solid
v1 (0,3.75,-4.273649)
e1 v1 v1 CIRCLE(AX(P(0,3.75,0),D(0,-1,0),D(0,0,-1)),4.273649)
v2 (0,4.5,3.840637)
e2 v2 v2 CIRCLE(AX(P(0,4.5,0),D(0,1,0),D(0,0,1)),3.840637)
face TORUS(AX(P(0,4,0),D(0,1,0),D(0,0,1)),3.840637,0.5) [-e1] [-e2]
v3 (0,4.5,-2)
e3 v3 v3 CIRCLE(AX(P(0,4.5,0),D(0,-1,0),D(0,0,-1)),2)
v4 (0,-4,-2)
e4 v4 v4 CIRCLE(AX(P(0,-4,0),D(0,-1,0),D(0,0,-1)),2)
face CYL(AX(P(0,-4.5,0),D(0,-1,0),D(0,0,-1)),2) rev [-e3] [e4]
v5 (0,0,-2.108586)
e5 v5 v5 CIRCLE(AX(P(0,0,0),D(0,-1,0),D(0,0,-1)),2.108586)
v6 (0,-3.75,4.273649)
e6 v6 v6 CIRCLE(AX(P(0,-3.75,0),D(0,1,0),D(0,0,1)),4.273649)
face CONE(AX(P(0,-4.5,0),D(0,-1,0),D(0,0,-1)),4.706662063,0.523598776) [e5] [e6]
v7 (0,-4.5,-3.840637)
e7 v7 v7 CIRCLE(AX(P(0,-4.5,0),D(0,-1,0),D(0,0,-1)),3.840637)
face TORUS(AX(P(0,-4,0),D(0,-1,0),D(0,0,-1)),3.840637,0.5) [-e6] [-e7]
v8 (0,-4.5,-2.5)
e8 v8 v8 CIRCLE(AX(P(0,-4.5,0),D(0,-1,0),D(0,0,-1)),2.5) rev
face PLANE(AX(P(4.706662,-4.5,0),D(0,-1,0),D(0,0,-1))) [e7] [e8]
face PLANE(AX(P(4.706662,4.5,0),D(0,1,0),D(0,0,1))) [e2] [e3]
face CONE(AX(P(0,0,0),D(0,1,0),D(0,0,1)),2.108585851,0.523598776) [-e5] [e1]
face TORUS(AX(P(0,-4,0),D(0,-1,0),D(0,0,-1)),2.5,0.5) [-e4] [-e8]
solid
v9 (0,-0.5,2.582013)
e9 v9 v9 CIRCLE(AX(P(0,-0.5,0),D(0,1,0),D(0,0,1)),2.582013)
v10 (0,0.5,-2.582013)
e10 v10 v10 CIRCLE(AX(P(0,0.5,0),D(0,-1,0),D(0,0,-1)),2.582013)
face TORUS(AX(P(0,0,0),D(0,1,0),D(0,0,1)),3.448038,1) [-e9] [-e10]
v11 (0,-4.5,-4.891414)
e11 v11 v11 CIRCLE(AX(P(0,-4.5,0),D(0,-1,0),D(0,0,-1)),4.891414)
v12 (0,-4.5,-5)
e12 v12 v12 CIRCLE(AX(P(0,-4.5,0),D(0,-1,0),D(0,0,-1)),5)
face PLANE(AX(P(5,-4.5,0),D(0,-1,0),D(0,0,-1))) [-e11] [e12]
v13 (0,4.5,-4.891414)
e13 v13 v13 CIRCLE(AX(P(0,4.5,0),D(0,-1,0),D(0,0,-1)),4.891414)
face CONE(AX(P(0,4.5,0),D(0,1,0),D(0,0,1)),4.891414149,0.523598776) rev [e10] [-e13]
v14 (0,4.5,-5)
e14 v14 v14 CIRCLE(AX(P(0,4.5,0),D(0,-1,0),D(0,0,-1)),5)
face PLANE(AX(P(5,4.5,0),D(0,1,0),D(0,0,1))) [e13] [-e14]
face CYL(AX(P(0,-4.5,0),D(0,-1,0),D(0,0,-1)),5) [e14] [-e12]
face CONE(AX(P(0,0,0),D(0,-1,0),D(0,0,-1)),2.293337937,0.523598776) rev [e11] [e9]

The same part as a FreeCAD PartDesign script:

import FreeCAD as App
import Part
import Sketcher
from FreeCAD import Vector
Q = App.Units.Quantity


def edges_at(feature, points):
    """Names of the edges that pass closest to the given points."""
    edges = feature.Shape.Edges
    near = lambda p: min(range(len(edges)), key=lambda i: edges[i].distToShape(Part.Vertex(*p))[0])
    return sorted({f"Edge{near(p) + 1}" for p in points})

doc = App.newDocument("Part")
params = doc.addObject("Spreadsheet::Sheet", "Params")
for row, (alias, value) in enumerate([
    ("sketch1_height", "9 mm"),
    ("revolution_angle", "360 deg"),
    ("fillet_radius", "1 mm"),
    ("fillet2_radius", "0.5 mm"),
], start=1):
    params.set(f"A{row}", alias)
    params.set(f"B{row}", "=" + value)
    params.setAlias(f"B{row}", alias)

body = doc.addObject("PartDesign::Body", "Body")
body.AllowCompound = True

sketch1 = doc.addObject("Sketcher::SketchObject", "Sketch")
body.addObject(sketch1)
sketch1.AttachmentSupport = (doc.XY_Plane, [""])
sketch1.MapMode = "FlatFace"
sketch1.addGeometry([
    Part.LineSegment(Vector(4.89, -4.5, 0), Vector(5, -4.5, 0)),
    Part.LineSegment(Vector(5, -4.5, 0), Vector(5, 4.5, 0)),
    Part.LineSegment(Vector(5, 4.5, 0), Vector(4.89, 4.5, 0)),
    Part.LineSegment(Vector(4.89, 4.5, 0), Vector(2.29, 0, 0)),
    Part.LineSegment(Vector(2.29, 0, 0), Vector(4.89, -4.5, 0)),
    Part.LineSegment(Vector(2, 4.5, 0), Vector(2, -4.5, 0)),
    Part.LineSegment(Vector(2, -4.5, 0), Vector(4.71, -4.5, 0)),
    Part.LineSegment(Vector(4.71, -4.5, 0), Vector(2.11, 0, 0)),
    Part.LineSegment(Vector(2.11, 0, 0), Vector(4.71, 4.5, 0)),
    Part.LineSegment(Vector(4.71, 4.5, 0), Vector(2, 4.5, 0)),
], False)
sketch1.addConstraint([
    Sketcher.Constraint("Coincident", 0, 2, 1, 1),
    Sketcher.Constraint("Coincident", 1, 2, 2, 1),
    Sketcher.Constraint("Coincident", 2, 2, 3, 1),
    Sketcher.Constraint("Coincident", 3, 2, 4, 1),
    Sketcher.Constraint("Coincident", 4, 2, 0, 1),
    Sketcher.Constraint("Coincident", 5, 2, 6, 1),
    Sketcher.Constraint("Coincident", 6, 2, 7, 1),
    Sketcher.Constraint("Coincident", 7, 2, 8, 1),
    Sketcher.Constraint("Coincident", 8, 2, 9, 1),
    Sketcher.Constraint("Coincident", 9, 2, 5, 1),
    Sketcher.Constraint("Horizontal", 0),
    Sketcher.Constraint("Vertical", 1),
    Sketcher.Constraint("Horizontal", 2),
    Sketcher.Constraint("Vertical", 5),
    Sketcher.Constraint("Horizontal", 6),
    Sketcher.Constraint("Horizontal", 9),
    Sketcher.Constraint("Symmetric", 2, 2, 4, 2, -1),
    Sketcher.Constraint("Symmetric", 6, 2, 8, 2, -1),
    Sketcher.Constraint("PointOnObject", 3, 2, -1),
    Sketcher.Constraint("PointOnObject", 7, 2, -1),
    Sketcher.Constraint("Parallel", 4, 7),
    Sketcher.Constraint("Horizontal", 4, 2, 5, 2),
    Sketcher.Constraint("DistanceY", 1, 1, 1, 2, 9.0),
    Sketcher.Constraint("Angle", 3, Q("-120 deg")),
    Sketcher.Constraint("DistanceX", -1, 1, 0, 2, 5.0),
    Sketcher.Constraint("DistanceX", -1, 1, 5, 2, 2.0),
    Sketcher.Constraint("DistanceX", 0, 1, 0, 2, 0.108586),
    Sketcher.Constraint("DistanceX", 6, 1, 6, 2, 2.706662),
])
sketch1.setExpression("Constraints[22]", "Params.sketch1_height")
revolution = doc.addObject("PartDesign::Revolution", "Revolution")
body.addObject(revolution)
revolution.Profile = sketch1
revolution.ReferenceAxis = (sketch1, ["V_Axis"])
revolution.setExpression("Angle", "Params.revolution_angle")
doc.recompute()

fillet = doc.addObject("PartDesign::Fillet", "Fillet")
body.addObject(fillet)
fillet.Base = (revolution, edges_at(revolution, [(-2.293, 0, 0)]))
fillet.setExpression("Radius", "Params.fillet_radius")
doc.recompute()

fillet2 = doc.addObject("PartDesign::Fillet", "Fillet001")
body.addObject(fillet2)
fillet2.Base = (fillet, edges_at(fillet, [(-2, -4.5, 0), (-4.707, -4.5, 0), (-4.707, 4.5, 0)]))
fillet2.setExpression("Radius", "Params.fillet2_radius")

doc.recompute()
